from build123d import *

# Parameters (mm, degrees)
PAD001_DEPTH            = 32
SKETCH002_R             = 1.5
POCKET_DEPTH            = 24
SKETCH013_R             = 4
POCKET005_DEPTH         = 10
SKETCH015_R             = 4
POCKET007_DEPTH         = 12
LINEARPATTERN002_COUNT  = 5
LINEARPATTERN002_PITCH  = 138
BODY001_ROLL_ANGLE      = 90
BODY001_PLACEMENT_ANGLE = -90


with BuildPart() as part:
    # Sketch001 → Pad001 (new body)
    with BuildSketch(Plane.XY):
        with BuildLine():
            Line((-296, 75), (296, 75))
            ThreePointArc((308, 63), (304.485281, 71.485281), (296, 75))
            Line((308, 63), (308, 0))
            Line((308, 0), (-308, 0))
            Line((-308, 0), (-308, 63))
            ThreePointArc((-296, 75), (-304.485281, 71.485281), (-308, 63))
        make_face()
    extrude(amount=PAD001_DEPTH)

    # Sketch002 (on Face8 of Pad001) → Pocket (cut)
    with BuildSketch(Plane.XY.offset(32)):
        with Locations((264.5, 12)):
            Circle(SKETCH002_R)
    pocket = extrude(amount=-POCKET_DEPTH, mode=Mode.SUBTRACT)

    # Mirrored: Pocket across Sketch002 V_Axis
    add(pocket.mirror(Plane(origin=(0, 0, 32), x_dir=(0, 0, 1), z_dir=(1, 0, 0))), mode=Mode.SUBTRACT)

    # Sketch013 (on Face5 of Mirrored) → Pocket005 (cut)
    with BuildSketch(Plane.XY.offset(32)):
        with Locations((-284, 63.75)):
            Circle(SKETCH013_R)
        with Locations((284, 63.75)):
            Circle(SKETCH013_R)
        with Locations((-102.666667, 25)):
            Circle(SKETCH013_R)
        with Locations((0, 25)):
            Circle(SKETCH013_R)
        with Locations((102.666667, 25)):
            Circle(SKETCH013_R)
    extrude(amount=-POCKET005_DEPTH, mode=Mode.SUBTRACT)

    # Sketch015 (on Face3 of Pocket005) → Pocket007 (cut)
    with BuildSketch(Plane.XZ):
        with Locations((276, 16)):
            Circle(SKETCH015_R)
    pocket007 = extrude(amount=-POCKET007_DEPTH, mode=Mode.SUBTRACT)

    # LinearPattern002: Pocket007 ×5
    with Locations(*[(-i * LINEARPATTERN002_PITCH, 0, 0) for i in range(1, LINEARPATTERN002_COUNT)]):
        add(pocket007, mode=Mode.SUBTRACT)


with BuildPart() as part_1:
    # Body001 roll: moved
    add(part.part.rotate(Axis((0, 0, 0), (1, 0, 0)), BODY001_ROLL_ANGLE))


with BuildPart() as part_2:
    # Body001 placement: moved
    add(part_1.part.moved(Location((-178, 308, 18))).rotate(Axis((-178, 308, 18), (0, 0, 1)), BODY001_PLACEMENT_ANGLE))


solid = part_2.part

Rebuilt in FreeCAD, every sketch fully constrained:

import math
import FreeCAD as App
import Part
import Sketcher
Q = App.Units.Quantity

doc = App.newDocument("Part")
body = doc.addObject("PartDesign::Body", "Body")

# Sketch on XY plane
sketch1 = body.newObject("Sketcher::SketchObject", "Sketch")
sketch1.AttachmentSupport = (doc.getObject("XY_Plane"), [""])
sketch1.MapMode = "FlatFace"
sketch1.addGeometry([
    Part.LineSegment(App.Vector(296, 75, 0), App.Vector(-296, 75, 0)),  # 0
    Part.ArcOfCircle(Part.Circle(App.Vector(-296, 63, 0), App.Vector(0, 0, 1), 12), math.radians(90), math.radians(180)),  # 1
    Part.LineSegment(App.Vector(-308, 63, 0), App.Vector(-308, 0, 0)),  # 2
    Part.LineSegment(App.Vector(-308, 0, 0), App.Vector(308, 0, 0)),  # 3
    Part.LineSegment(App.Vector(308, 0, 0), App.Vector(308, 63, 0)),  # 4
    Part.ArcOfCircle(Part.Circle(App.Vector(296, 63, 0), App.Vector(0, 0, 1), 12), math.radians(0), math.radians(90)),  # 5
], False)
sketch1.addConstraint([
    Sketcher.Constraint("Tangent", 0, 2, 1, 1),
    Sketcher.Constraint("Tangent", 1, 2, 2, 1),
    Sketcher.Constraint("Coincident", 2, 2, 3, 1),
    Sketcher.Constraint("Coincident", 3, 2, 4, 1),
    Sketcher.Constraint("Tangent", 4, 2, 5, 1),
    Sketcher.Constraint("Tangent", 5, 2, 0, 1),
    Sketcher.Constraint("Horizontal", 0),
    Sketcher.Constraint("Vertical", 2),
    Sketcher.Constraint("Horizontal", 3),
    Sketcher.Constraint("Vertical", 4),
    Sketcher.Constraint("Equal", 1, 5),
    Sketcher.Constraint("Symmetric", 2, 2, 3, 2, -1, 1),
    Sketcher.Constraint("Radius", 1, Q("12.000001 mm")),
    Sketcher.Constraint("DistanceX", 0, 2, 0, 1, Q("592 mm")),
    Sketcher.Constraint("DistanceY", 2, 2, 2, 1, Q("63 mm")),
])
pad1 = body.newObject("PartDesign::Pad", "Pad")
pad1.Profile = sketch1
pad1.Length = 32

# Sketch on XY plane
sketch2 = body.newObject("Sketcher::SketchObject", "Sketch001")
sketch2.AttachmentSupport = (doc.getObject("XY_Plane"), [""])
sketch2.MapMode = "FlatFace"
sketch2.AttachmentOffset = App.Placement(App.Vector(0, 0, 32), App.Rotation())
sketch2.addGeometry(Part.Circle(App.Vector(264.5, 12, 0), App.Vector(0, 0, 1), 1.5), False)
sketch2.addConstraint([
    Sketcher.Constraint("Diameter", 0, Q("3 mm")),
    Sketcher.Constraint("DistanceY", -1, 1, 0, 3, Q("12 mm")),
    Sketcher.Constraint("DistanceX", -1, 1, 0, 3, Q("264.5 mm")),
])
pocket1 = body.newObject("PartDesign::Pocket", "Pocket")
pocket1.Profile = sketch2
pocket1.Length = 24
doc.recompute()

mirrored = body.newObject("PartDesign::Mirrored", "Mirrored")
mirrored.Originals = [pocket1]
mirrored.MirrorPlane = (doc.getObject("YZ_Plane"), [""])
body.Tip = mirrored

# Sketch on XY plane
sketch3 = body.newObject("Sketcher::SketchObject", "Sketch002")
sketch3.AttachmentSupport = (doc.getObject("XY_Plane"), [""])
sketch3.MapMode = "FlatFace"
sketch3.AttachmentOffset = App.Placement(App.Vector(0, 0, 32), App.Rotation())
sketch3.addGeometry([
    Part.Circle(App.Vector(-284, 63.8, 0), App.Vector(0, 0, 1), 4),  # 0
    Part.Circle(App.Vector(284, 63.8, 0), App.Vector(0, 0, 1), 4),  # 1
    Part.Circle(App.Vector(-102.7, 25, 0), App.Vector(0, 0, 1), 4),  # 2
    Part.Circle(App.Vector(0, 25, 0), App.Vector(0, 0, 1), 4),  # 3
    Part.Circle(App.Vector(102.7, 25, 0), App.Vector(0, 0, 1), 4),  # 4
], False)
sketch3.addConstraint([
    Sketcher.Constraint("Equal", 0, 1),
    Sketcher.Constraint("Equal", 1, 2),
    Sketcher.Constraint("Equal", 2, 3),
    Sketcher.Constraint("Equal", 3, 4),
    Sketcher.Constraint("Symmetric", 0, 3, 1, 3, -2),
    Sketcher.Constraint("Symmetric", 2, 3, 4, 3, -2),
    Sketcher.Constraint("PointOnObject", 3, 3, -2),
    Sketcher.Constraint("Horizontal", 2, 3, 3, 3),
    Sketcher.Constraint("Diameter", 0, Q("8 mm")),
    Sketcher.Constraint("DistanceX", 0, 3, -1, 1, Q("284 mm")),
    Sketcher.Constraint("DistanceY", -1, 1, 2, 3, Q("25 mm")),
    Sketcher.Constraint("DistanceY", -1, 1, 0, 3, Q("63.75 mm")),
    Sketcher.Constraint("DistanceX", 2, 3, -1, 1, Q("102.666667 mm")),
])
pocket2 = body.newObject("PartDesign::Pocket", "Pocket001")
pocket2.Profile = sketch3
pocket2.Length = 10

# Sketch on XZ plane
sketch4 = body.newObject("Sketcher::SketchObject", "Sketch003")
sketch4.AttachmentSupport = (doc.getObject("XZ_Plane"), [""])
sketch4.MapMode = "FlatFace"
sketch4.addGeometry(Part.Circle(App.Vector(276, 16, 0), App.Vector(0, 0, 1), 4), False)
sketch4.addConstraint([
    Sketcher.Constraint("Diameter", 0, Q("8 mm")),
    Sketcher.Constraint("DistanceX", -1, 1, 0, 3, Q("276 mm")),
    Sketcher.Constraint("DistanceY", -1, 1, 0, 3, Q("16 mm")),
])
pocket3 = body.newObject("PartDesign::Pocket", "Pocket002")
pocket3.Profile = sketch4
pocket3.Length = 12
doc.recompute()

linearpattern = body.newObject("PartDesign::LinearPattern", "LinearPattern")
linearpattern.Originals = [pocket3]
linearpattern.Direction = (doc.getObject("X_Axis"), [""])
linearpattern.Mode = "offset"
linearpattern.Offset = 138
linearpattern.Occurrences = 5
linearpattern.Reversed = True
body.Tip = linearpattern
body2 = doc.addObject("PartDesign::Body", "Body001")
doc.recompute()

body.Placement = App.Placement(App.Vector(0, 0, 0), App.Rotation(App.Vector(1, 0, 0), 90))
boolean = body2.newObject("PartDesign::Boolean", "Boolean")
boolean.Type = "Fuse"
boolean.addObjects([body])
body3 = doc.addObject("PartDesign::Body", "Body002")
doc.recompute()

body2.Placement = App.Placement(App.Vector(-178, 308, 18), App.Rotation(App.Vector(0, 0, 1), 270))
boolean2 = body3.newObject("PartDesign::Boolean", "Boolean001")
boolean2.Type = "Fuse"
boolean2.addObjects([body2])

doc.recompute()
